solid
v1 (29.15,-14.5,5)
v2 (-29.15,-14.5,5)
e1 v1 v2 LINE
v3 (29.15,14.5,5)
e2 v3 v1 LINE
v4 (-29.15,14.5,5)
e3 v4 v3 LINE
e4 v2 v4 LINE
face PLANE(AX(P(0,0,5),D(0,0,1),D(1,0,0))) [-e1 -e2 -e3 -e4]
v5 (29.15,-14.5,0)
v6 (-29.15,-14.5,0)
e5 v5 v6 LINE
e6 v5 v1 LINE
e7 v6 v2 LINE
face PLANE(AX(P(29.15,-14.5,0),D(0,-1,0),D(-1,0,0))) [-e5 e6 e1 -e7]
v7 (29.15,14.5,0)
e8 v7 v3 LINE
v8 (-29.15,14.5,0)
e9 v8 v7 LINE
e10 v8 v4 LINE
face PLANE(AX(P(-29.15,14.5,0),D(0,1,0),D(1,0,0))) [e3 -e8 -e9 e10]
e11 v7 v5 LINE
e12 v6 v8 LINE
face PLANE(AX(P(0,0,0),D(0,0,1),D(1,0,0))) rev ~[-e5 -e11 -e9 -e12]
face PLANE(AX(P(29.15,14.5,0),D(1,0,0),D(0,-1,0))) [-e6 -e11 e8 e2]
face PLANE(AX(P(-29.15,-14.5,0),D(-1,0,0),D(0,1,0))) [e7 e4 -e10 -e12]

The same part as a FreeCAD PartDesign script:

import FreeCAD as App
import Part
import Sketcher

V = App.Vector
Q = App.Units.Quantity


def add_polygon(sketch, points):
    """Adds a closed chain of lines whose ends are joined by coincident constraints."""
    first, n = sketch.GeometryCount, len(points)
    for a, b in zip(points, points[1:] + points[:1]):
        sketch.addGeometry(Part.LineSegment(App.Vector(*a, 0), App.Vector(*b, 0)), False)
    for i in range(n):
        sketch.addConstraint(Sketcher.Constraint("Coincident", first + i, 2, first + (i + 1) % n, 1))

doc = App.newDocument("Part")
body = doc.addObject("PartDesign::Body", "Body")

sketch1 = body.newObject("Sketcher::SketchObject", "Sketch")
sketch1.AttachmentSupport = (doc.getObject("XY_Plane"), [""])
sketch1.MapMode = "FlatFace"
add_polygon(sketch1, [(29, 14), (-29, 14), (-29, -14), (29, -14)])
sketch1.addConstraint(Sketcher.Constraint("Horizontal", 0))
sketch1.addConstraint(Sketcher.Constraint("Vertical", 1))
sketch1.addConstraint(Sketcher.Constraint("Horizontal", 2))
sketch1.addConstraint(Sketcher.Constraint("Vertical", 3))
sketch1.addConstraint(Sketcher.Constraint("Symmetric", 0, 2, 2, 2, -1, 1))
sketch1.addConstraint(Sketcher.Constraint("DistanceX", 0, 2, 0, 1, Q("58.3 mm")))
sketch1.addConstraint(Sketcher.Constraint("DistanceY", 1, 2, 1, 1, Q("29 mm")))
pad1 = body.newObject("PartDesign::Pad", "Pad")
pad1.Profile = sketch1
pad1.Length = 5

doc.recompute()
